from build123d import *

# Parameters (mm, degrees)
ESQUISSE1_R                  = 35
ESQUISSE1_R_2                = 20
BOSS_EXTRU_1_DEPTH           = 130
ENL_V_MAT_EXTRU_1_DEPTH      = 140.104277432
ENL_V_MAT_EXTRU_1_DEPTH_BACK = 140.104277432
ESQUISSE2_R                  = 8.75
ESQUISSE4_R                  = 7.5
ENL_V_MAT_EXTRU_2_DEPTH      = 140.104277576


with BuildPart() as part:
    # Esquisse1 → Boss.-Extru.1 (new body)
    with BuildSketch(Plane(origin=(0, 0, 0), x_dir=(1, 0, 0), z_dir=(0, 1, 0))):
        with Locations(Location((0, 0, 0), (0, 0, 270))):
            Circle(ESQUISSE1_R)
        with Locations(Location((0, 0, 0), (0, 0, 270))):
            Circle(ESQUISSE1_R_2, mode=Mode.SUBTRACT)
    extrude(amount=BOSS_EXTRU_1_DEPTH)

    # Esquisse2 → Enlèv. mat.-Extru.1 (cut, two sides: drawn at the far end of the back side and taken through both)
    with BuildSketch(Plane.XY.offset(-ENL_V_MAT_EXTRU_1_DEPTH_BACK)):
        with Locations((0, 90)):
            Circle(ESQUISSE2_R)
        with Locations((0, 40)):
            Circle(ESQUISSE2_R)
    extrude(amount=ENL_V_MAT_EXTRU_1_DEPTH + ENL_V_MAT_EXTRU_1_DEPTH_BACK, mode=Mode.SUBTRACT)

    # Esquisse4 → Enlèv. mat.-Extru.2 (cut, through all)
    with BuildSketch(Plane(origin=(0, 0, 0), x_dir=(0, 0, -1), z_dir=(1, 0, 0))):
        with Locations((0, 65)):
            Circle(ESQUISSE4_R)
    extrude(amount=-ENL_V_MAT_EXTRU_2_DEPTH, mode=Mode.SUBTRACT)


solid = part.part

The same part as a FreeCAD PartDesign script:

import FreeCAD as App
import Part
import Sketcher

V = App.Vector
Q = App.Units.Quantity

doc = App.newDocument("Part")
body = doc.addObject("PartDesign::Body", "Body")

sketch1 = doc.addObject("Sketcher::SketchObject", "Sketch")
body.addObject(sketch1)
sketch1.AttachmentSupport = (doc.XZ_Plane, [""])
sketch1.MapMode = "FlatFace"
sketch1.addGeometry([
    Part.Circle(V(0, 0, 0), V(0, 0, 1), 35),
    Part.Circle(V(0, 0, 0), V(0, 0, 1), 20),
], False)
sketch1.addConstraint([
    Sketcher.Constraint("Coincident", 0, 3, -1, 1),
    Sketcher.Constraint("Coincident", 1, 3, -1, 1),
    Sketcher.Constraint("Diameter", 0, Q("70 mm")),
    Sketcher.Constraint("Diameter", 1, Q("40 mm")),
])
pad1 = doc.addObject("PartDesign::Pad", "Pad")
body.addObject(pad1)
pad1.Profile = sketch1
pad1.Length = 130
pad1.Reversed = True

sketch2 = doc.addObject("Sketcher::SketchObject", "Sketch001")
body.addObject(sketch2)
sketch2.AttachmentSupport = (doc.XY_Plane, [""])
sketch2.MapMode = "FlatFace"
sketch2.addGeometry([
    Part.Circle(V(0, 90, 0), V(0, 0, 1), 9),
    Part.Circle(V(0, 40, 0), V(0, 0, 1), 9),
], False)
sketch2.addConstraint([
    Sketcher.Constraint("Equal", 0, 1),
    Sketcher.Constraint("PointOnObject", 0, 3, -2),
    Sketcher.Constraint("PointOnObject", 1, 3, -2),
    Sketcher.Constraint("Diameter", 0, Q("17.5 mm")),
    Sketcher.Constraint("DistanceY", -1, 1, 0, 3, Q("90 mm")),
    Sketcher.Constraint("DistanceY", -1, 1, 1, 3, Q("40 mm")),
])
pocket1 = doc.addObject("PartDesign::Pocket", "Pocket")
body.addObject(pocket1)
pocket1.Profile = sketch2
pocket1.Type = "ThroughAll"
pocket1.Midplane = True

sketch3 = doc.addObject("Sketcher::SketchObject", "Sketch002")
body.addObject(sketch3)
sketch3.AttachmentSupport = (doc.YZ_Plane, [""])
sketch3.MapMode = "FlatFace"
sketch3.addGeometry(Part.Circle(V(65, 0, 0), V(0, 0, 1), 8), False)
sketch3.addConstraint([
    Sketcher.Constraint("PointOnObject", 0, 3, -1),
    Sketcher.Constraint("Diameter", 0, Q("15 mm")),
    Sketcher.Constraint("DistanceX", -1, 1, 0, 3, Q("65 mm")),
])
pocket2 = doc.addObject("PartDesign::Pocket", "Pocket001")
body.addObject(pocket2)
pocket2.Profile = sketch3
pocket2.Type = "ThroughAll"

doc.recompute()
